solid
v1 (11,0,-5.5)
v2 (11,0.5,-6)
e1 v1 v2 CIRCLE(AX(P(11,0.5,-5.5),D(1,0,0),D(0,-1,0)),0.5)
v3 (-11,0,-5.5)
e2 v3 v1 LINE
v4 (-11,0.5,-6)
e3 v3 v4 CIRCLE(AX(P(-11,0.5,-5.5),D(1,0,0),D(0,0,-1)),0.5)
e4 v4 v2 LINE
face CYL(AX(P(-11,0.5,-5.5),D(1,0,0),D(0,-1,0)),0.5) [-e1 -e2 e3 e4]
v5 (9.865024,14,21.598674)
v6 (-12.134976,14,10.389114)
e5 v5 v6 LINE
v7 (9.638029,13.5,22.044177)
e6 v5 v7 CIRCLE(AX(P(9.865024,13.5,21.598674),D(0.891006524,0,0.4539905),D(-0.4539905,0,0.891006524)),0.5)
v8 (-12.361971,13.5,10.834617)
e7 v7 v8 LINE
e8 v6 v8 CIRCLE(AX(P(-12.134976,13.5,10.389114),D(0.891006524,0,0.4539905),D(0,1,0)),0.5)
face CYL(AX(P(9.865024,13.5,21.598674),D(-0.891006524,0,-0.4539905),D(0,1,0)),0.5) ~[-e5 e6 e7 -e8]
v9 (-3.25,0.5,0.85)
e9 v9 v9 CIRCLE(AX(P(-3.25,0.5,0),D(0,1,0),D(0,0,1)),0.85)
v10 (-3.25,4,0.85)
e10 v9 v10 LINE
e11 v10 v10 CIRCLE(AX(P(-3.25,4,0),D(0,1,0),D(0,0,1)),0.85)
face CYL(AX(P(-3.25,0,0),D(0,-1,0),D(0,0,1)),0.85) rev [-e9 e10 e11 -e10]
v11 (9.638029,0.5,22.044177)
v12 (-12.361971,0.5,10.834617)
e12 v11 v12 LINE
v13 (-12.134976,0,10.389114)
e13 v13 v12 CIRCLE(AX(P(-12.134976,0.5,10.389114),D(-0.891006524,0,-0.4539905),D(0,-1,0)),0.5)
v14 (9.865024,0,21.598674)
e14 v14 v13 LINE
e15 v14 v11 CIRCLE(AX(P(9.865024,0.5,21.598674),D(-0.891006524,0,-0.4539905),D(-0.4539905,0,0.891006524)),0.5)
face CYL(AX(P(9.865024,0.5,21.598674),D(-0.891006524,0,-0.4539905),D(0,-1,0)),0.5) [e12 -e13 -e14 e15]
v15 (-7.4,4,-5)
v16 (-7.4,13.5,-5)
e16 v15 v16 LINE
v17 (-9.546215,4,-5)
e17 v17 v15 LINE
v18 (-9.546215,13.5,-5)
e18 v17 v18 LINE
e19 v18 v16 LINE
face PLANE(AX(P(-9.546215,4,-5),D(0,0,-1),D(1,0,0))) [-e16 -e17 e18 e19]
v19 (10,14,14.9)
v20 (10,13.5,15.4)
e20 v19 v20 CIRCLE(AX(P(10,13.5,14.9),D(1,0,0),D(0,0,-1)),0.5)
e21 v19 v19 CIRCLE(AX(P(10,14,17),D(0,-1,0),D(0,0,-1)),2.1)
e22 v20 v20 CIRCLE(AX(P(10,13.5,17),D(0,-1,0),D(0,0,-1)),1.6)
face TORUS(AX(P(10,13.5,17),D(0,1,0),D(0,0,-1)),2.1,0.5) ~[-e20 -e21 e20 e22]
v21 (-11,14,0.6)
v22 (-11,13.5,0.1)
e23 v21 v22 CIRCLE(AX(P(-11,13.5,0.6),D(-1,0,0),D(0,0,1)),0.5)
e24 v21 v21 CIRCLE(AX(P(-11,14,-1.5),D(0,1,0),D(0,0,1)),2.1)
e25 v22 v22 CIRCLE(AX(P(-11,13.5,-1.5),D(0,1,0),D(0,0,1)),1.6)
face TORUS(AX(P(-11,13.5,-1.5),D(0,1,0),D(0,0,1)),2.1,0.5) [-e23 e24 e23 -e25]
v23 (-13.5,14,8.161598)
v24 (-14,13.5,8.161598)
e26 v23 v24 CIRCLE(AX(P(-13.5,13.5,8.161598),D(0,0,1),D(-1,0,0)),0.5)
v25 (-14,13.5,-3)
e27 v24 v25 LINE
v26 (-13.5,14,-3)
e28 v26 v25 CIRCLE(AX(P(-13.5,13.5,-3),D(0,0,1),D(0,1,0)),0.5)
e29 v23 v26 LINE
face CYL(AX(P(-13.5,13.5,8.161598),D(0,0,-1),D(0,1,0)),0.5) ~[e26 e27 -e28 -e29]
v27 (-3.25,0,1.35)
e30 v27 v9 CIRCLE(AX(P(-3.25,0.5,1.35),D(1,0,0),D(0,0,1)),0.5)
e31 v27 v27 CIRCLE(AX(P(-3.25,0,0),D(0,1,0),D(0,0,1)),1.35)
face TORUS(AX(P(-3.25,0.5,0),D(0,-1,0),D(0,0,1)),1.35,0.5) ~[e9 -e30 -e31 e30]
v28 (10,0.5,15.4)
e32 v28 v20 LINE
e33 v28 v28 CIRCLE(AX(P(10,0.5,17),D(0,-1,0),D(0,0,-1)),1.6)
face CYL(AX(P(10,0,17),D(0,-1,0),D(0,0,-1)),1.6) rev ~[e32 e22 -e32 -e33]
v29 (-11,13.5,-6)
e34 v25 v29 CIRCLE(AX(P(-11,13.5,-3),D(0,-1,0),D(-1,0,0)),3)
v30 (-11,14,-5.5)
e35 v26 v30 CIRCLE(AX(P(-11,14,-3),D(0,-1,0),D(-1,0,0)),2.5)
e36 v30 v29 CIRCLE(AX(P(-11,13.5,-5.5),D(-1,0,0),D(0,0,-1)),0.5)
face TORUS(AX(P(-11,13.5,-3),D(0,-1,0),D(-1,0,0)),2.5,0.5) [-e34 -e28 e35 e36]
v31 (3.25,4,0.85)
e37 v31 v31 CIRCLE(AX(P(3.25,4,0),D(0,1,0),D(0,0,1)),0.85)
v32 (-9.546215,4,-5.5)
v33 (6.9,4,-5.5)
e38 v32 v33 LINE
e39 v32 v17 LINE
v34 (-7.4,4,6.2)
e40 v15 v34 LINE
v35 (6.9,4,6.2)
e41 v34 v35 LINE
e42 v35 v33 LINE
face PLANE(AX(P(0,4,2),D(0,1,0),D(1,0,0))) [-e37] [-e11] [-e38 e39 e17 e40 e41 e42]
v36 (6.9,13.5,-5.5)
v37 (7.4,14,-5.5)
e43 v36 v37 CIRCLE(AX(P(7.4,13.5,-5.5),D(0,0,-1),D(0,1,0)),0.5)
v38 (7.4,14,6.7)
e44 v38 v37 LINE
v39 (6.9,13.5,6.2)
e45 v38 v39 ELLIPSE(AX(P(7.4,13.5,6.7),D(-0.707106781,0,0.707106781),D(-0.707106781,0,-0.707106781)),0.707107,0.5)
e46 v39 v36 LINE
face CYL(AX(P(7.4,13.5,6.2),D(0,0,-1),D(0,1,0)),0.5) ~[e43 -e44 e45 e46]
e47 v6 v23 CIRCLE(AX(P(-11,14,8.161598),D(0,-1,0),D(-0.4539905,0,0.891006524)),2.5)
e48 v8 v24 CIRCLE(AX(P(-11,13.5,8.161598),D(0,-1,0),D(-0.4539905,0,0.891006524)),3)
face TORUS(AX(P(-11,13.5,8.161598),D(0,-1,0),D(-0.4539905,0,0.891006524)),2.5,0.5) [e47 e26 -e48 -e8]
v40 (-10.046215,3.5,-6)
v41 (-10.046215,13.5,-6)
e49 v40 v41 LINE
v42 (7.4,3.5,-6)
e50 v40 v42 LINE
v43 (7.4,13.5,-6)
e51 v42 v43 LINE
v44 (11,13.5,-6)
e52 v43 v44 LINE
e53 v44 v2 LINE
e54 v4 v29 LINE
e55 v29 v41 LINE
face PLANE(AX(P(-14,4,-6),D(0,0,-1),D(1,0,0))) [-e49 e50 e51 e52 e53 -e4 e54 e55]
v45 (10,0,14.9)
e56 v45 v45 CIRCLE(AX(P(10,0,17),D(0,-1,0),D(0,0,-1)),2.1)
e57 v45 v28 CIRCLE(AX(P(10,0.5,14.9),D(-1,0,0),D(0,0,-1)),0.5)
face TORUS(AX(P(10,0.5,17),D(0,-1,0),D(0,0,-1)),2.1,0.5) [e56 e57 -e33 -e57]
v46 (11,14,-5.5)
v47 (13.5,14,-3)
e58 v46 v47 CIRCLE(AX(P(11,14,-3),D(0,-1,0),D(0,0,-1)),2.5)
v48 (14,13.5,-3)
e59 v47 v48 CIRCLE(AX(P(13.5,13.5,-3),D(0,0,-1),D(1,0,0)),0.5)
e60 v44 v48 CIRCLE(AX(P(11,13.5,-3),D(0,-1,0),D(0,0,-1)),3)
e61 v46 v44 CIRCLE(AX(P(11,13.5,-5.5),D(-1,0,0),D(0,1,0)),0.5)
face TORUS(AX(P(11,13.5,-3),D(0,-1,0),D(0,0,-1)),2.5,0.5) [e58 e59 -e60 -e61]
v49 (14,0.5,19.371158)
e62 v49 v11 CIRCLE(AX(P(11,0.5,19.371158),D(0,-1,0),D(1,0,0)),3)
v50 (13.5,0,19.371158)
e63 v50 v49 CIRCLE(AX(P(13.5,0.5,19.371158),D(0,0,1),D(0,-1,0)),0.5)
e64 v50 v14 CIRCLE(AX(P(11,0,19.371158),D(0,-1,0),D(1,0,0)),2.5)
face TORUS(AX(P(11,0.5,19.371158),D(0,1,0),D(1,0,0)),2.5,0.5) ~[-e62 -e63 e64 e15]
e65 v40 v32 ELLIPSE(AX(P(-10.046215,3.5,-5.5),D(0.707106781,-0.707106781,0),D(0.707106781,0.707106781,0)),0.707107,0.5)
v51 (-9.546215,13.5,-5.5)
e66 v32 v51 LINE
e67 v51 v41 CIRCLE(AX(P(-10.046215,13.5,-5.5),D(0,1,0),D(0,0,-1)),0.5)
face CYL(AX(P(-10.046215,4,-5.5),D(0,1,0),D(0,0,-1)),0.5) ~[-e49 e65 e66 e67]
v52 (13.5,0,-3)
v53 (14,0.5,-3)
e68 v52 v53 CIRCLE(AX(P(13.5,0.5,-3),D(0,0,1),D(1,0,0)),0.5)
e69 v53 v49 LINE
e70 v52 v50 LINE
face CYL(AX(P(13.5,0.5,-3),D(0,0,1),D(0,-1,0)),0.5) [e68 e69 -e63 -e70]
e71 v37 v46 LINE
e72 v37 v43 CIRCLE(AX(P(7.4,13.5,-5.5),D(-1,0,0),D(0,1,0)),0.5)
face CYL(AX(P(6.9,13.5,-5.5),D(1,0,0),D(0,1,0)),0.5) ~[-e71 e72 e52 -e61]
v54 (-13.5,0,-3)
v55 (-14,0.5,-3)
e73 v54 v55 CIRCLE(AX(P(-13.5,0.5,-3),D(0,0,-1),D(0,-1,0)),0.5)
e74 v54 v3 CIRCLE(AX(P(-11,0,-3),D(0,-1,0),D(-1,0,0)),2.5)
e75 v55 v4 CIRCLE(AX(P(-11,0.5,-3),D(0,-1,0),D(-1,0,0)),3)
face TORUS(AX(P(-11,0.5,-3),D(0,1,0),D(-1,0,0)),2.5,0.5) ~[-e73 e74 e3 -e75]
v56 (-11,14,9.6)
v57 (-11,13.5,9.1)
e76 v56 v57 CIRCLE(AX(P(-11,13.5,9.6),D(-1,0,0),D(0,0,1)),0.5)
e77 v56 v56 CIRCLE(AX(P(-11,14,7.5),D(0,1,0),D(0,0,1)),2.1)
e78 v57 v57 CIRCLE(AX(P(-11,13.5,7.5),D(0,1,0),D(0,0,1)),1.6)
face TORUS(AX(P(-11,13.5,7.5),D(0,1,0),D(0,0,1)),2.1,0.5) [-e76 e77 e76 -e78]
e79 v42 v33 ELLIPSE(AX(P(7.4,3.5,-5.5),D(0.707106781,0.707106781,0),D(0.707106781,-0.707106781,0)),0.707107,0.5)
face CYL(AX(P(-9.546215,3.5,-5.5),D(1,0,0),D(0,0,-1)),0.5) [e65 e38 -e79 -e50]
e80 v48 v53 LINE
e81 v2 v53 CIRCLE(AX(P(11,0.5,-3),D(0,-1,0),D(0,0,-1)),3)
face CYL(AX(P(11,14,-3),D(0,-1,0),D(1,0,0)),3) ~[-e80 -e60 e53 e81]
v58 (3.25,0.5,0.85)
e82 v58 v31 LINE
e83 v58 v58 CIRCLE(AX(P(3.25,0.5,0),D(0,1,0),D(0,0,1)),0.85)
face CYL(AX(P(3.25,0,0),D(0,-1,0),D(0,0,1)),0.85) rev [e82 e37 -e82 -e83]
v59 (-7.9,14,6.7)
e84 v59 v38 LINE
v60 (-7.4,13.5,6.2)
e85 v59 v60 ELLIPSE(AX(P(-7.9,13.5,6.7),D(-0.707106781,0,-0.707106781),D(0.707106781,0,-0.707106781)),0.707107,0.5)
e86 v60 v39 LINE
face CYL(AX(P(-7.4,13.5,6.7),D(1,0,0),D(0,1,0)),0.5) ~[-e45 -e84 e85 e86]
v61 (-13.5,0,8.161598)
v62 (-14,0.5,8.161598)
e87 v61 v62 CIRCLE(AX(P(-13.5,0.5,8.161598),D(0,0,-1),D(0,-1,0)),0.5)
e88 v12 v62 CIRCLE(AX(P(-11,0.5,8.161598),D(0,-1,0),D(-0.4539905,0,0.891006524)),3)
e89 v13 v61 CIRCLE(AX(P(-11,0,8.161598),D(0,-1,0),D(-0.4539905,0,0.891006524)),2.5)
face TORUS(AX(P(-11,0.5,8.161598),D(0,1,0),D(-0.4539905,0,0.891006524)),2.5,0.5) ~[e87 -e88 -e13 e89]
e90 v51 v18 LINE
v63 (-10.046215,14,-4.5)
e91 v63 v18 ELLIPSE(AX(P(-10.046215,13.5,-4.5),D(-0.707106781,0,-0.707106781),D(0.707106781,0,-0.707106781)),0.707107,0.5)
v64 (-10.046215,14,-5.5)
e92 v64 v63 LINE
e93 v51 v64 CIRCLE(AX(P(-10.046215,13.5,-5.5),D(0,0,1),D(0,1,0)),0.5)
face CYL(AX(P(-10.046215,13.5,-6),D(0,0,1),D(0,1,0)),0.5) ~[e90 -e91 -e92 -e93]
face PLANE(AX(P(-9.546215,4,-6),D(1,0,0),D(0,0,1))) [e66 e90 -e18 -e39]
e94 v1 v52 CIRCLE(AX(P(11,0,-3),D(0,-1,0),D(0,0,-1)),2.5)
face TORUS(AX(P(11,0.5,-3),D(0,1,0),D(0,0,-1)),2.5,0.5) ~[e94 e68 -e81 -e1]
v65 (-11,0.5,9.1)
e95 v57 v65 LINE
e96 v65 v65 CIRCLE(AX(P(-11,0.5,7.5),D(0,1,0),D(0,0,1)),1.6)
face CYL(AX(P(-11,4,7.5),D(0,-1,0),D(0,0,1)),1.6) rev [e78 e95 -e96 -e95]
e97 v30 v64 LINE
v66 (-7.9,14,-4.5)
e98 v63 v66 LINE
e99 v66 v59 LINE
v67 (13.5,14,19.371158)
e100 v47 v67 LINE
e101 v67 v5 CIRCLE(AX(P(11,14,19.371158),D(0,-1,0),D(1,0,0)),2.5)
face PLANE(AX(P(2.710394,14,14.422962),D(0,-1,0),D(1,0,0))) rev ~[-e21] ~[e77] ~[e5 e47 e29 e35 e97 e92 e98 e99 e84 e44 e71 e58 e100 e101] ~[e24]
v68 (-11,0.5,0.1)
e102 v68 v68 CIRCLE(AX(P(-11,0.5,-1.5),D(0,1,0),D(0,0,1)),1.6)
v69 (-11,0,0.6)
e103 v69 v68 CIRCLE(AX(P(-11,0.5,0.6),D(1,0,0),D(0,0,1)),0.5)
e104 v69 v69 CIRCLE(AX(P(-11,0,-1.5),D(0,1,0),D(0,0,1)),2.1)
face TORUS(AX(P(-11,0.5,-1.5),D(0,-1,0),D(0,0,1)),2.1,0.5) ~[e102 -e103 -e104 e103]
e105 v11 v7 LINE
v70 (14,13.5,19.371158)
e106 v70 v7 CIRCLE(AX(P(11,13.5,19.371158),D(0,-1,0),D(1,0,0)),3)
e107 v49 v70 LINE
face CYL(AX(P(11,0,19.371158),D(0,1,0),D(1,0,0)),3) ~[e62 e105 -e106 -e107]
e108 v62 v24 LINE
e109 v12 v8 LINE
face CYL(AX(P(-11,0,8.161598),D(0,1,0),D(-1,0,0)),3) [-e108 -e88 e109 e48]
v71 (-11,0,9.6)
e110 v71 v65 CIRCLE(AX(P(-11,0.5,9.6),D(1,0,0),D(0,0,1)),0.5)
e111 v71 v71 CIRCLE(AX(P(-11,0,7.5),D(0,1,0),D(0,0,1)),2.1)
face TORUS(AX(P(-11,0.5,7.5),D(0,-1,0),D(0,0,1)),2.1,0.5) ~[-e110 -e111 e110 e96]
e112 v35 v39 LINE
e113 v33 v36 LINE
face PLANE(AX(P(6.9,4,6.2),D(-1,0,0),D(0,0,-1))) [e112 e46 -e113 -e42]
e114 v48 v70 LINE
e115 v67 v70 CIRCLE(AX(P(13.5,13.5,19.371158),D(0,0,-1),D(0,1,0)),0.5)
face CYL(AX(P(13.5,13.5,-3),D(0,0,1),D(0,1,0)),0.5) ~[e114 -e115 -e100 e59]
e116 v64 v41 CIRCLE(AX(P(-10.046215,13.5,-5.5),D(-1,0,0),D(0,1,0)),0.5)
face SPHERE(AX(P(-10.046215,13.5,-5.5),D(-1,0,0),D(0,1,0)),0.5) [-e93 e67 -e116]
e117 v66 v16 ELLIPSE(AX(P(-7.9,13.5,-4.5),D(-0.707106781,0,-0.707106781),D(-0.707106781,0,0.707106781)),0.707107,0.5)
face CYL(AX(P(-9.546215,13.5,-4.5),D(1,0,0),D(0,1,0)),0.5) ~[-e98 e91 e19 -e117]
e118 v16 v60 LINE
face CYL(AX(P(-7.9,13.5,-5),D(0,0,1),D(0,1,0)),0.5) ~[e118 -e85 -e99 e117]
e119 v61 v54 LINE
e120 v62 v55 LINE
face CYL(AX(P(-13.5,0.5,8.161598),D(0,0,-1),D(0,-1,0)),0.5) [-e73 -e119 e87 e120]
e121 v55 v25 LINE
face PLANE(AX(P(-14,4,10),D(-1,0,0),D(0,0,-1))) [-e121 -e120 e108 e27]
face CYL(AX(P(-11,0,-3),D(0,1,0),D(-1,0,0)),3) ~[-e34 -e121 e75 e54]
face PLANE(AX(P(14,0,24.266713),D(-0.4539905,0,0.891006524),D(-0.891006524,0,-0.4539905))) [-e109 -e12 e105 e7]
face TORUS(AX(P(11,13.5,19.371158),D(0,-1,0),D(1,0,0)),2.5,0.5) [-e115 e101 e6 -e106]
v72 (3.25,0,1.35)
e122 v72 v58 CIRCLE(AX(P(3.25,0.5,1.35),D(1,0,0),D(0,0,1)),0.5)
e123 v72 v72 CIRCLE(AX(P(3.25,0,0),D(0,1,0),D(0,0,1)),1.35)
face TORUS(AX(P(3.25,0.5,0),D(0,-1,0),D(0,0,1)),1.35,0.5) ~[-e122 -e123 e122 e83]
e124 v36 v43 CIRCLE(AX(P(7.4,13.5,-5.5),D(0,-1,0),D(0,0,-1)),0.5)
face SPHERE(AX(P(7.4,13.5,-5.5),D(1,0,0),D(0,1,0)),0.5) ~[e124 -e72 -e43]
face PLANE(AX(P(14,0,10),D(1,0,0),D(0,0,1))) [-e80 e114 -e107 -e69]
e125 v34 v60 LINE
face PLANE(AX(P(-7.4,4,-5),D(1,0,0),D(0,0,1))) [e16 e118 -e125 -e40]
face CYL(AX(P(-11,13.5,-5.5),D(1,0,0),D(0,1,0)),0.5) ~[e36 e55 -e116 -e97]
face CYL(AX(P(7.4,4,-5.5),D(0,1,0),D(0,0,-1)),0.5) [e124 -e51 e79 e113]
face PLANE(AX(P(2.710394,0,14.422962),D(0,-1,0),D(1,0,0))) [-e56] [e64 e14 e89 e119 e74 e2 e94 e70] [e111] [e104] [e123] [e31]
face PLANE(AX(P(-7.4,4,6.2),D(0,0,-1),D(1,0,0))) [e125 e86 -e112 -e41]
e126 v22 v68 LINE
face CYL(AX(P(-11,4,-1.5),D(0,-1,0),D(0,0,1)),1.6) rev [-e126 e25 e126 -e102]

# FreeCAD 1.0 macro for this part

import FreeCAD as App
import Part
import Sketcher

V = App.Vector
Q = App.Units.Quantity


def edges_at(feature, points):
    """Names of the edges that pass closest to the given points."""
    edges = feature.Shape.Edges
    near = lambda p: min(range(len(edges)), key=lambda i: edges[i].distToShape(Part.Vertex(*p))[0])
    return sorted({f"Edge{near(p) + 1}" for p in points})


def add_polygon(sketch, points):
    """Adds a closed chain of lines whose ends are joined by coincident constraints."""
    first, n = sketch.GeometryCount, len(points)
    for a, b in zip(points, points[1:] + points[:1]):
        sketch.addGeometry(Part.LineSegment(App.Vector(*a, 0), App.Vector(*b, 0)), False)
    for i in range(n):
        sketch.addConstraint(Sketcher.Constraint("Coincident", first + i, 2, first + (i + 1) % n, 1))

doc = App.newDocument("Part")
body = doc.addObject("PartDesign::Body", "Body")

# Sketch on XZ plane
sketch1 = doc.addObject("Sketcher::SketchObject", "Sketch")
body.addObject(sketch1)
sketch1.AttachmentSupport = (doc.XZ_Plane, [""])
sketch1.MapMode = "FlatFace"
add_polygon(sketch1, [(-14, -6), (-14, 10), (14, 10), (14, -6)])  # lines 0-3
sketch1.addGeometry(Part.Circle(V(-11, 7.5, 0), V(0, 0, 1), 1.6), False)  # 4
sketch1.addGeometry(Part.Circle(V(-11, -1.5, 0), V(0, 0, 1), 1.6), False)  # 5
sketch1.addGeometry(Part.Circle(V(-3.25, 0, 0), V(0, 0, 1), 0.85), False)  # 6
sketch1.addGeometry(Part.Circle(V(3.25, 0, 0), V(0, 0, 1), 0.85), False)  # 7
sketch1.addConstraint([
    Sketcher.Constraint("Vertical", 0),
    Sketcher.Constraint("Horizontal", 1),
    Sketcher.Constraint("Vertical", 2),
    Sketcher.Constraint("Horizontal", 3),
    Sketcher.Constraint("Equal", 4, 5),
    Sketcher.Constraint("Equal", 6, 7),
    Sketcher.Constraint("Symmetric", 6, 3, 7, 3, -1, 1),
    Sketcher.Constraint("PointOnObject", 6, 3, -1),
    Sketcher.Constraint("Vertical", 4, 3, 5, 3),
    Sketcher.Constraint("Diameter", 4, 3.2),
    Sketcher.Constraint("Diameter", 6, 1.7),
    Sketcher.Constraint("DistanceX", 1, 1, 1, 2, 28.0),
    Sketcher.Constraint("DistanceY", 0, 1, 0, 2, 16.0),
    Sketcher.Constraint("DistanceX", 4, 3, -1, 1, 11.0),
    Sketcher.Constraint("DistanceX", 0, 2, -1, 1, 14.0),
    Sketcher.Constraint("DistanceY", -1, 1, 0, 2, 10.0),
    Sketcher.Constraint("DistanceY", 5, 3, 4, 3, 9.0),
    Sketcher.Constraint("DistanceY", -1, 1, 4, 3, 7.5),
    Sketcher.Constraint("DistanceX", 6, 3, 7, 3, 6.5),
])
pad1 = doc.addObject("PartDesign::Pad", "Pad")
body.addObject(pad1)
pad1.Profile = sketch1
pad1.Length = 4
pad1.Reversed = True

# Sketch on XZ plane
sketch2 = doc.addObject("Sketcher::SketchObject", "Sketch001")
body.addObject(sketch2)
sketch2.AttachmentSupport = (doc.XZ_Plane, [""])
sketch2.MapMode = "FlatFace"
sketch2.AttachmentOffset = App.Placement(V(0, 0, -4), App.Rotation())
add_polygon(sketch2, [(-9.546215, -5), (-9.546215, -6), (-14, -6), (-14, 10), (14, 10), (14, -6), (6.9, -6), (6.9, 6.2), (-7.4, 6.2), (-7.4, -5)])  # lines 0-9
sketch2.addGeometry(Part.Circle(V(-11, 7.5, 0), V(0, 0, 1), 1.6), False)  # 10
sketch2.addGeometry(Part.Circle(V(-11, -1.5, 0), V(0, 0, 1), 1.6), False)  # 11
sketch2.addConstraint([
    Sketcher.Constraint("Vertical", 0),
    Sketcher.Constraint("Horizontal", 1),
    Sketcher.Constraint("Vertical", 2),
    Sketcher.Constraint("Horizontal", 3),
    Sketcher.Constraint("Vertical", 4),
    Sketcher.Constraint("Horizontal", 5),
    Sketcher.Constraint("Vertical", 6),
    Sketcher.Constraint("Horizontal", 7),
    Sketcher.Constraint("Vertical", 8),
    Sketcher.Constraint("Horizontal", 9),
    Sketcher.Constraint("Equal", 10, 11),
    Sketcher.Constraint("Symmetric", 1, 2, 4, 2, -2),
    Sketcher.Constraint("Vertical", 10, 3, 11, 3),
    Sketcher.Constraint("Diameter", 10, 3.2),
    Sketcher.Constraint("DistanceX", 3, 1, 3, 2, 28.0),
    Sketcher.Constraint("DistanceY", 0, 2, 0, 1, 1.0),
    Sketcher.Constraint("DistanceY", 2, 1, 2, 2, 16.0),
    Sketcher.Constraint("DistanceX", 5, 2, 5, 1, 7.1),
    Sketcher.Constraint("DistanceX", 7, 2, 7, 1, 14.3),
    Sketcher.Constraint("DistanceY", 6, 1, 6, 2, 12.2),
    Sketcher.Constraint("DistanceX", 10, 3, -1, 1, 11.0),
    Sketcher.Constraint("DistanceY", 0, 2, -1, 1, 6.0),
    Sketcher.Constraint("DistanceY", 11, 3, 10, 3, 9.0),
    Sketcher.Constraint("DistanceY", -1, 1, 10, 3, 7.5),
    Sketcher.Constraint("DistanceX", 1, 2, 1, 1, 4.453785),
])
pad2 = doc.addObject("PartDesign::Pad", "Pad001")
body.addObject(pad2)
pad2.Profile = sketch2
pad2.Length = 10
pad2.Reversed = True

# Sketch on XZ plane
sketch3 = doc.addObject("Sketcher::SketchObject", "Sketch002")
body.addObject(sketch3)
sketch3.AttachmentSupport = (doc.XZ_Plane, [""])
sketch3.MapMode = "FlatFace"
add_polygon(sketch3, [(14, 10), (14, 24.266713), (-14, 10)])  # lines 0-2
sketch3.addGeometry(Part.Circle(V(10, 17, 0), V(0, 0, 1), 1.6), False)  # 3
sketch3.addConstraint([
    Sketcher.Constraint("Vertical", 0),
    Sketcher.Constraint("Horizontal", 2),
    Sketcher.Constraint("Diameter", 3, 3.2),
    Sketcher.Constraint("DistanceX", 2, 1, 2, 2, 28.0),
    Sketcher.Constraint("Angle", 1, Q("-153 deg")),
    Sketcher.Constraint("DistanceX", -1, 1, 3, 3, 10.0),
    Sketcher.Constraint("DistanceY", -1, 1, 3, 3, 17.0),
    Sketcher.Constraint("DistanceX", -1, 1, 0, 2, 14.0),
    Sketcher.Constraint("DistanceY", -1, 1, 1, 2, 10.0),
])
pad3 = doc.addObject("PartDesign::Pad", "Pad002")
body.addObject(pad3)
pad3.Profile = sketch3
pad3.Length = 14
pad3.Reversed = True
doc.recompute()

fillet = doc.addObject("PartDesign::Fillet", "Fillet")
body.addObject(fillet)
fillet.Base = (pad3, edges_at(pad3, [
    (14, 7, 24.267),
    (-14, 7, 10),
    (-14, 7, -6),
    (14, 7, -6),
]))
fillet.Radius = 3
doc.recompute()

fillet2 = doc.addObject("PartDesign::Fillet", "Fillet001")
body.addObject(fillet2)
fillet2.Base = (fillet, edges_at(fillet, [
    (3.25, 0, -0.85),
    (-3.25, 0, -0.85),
    (-11, 0, 5.9),
    (-11, 0, -3.1),
    (-1.323, 4, -6),
    (-10.273, 14, -6),
    (6.9, 14, 0.1),
    (-0.25, 14, 6.2),
    (-7.4, 14, 0.6),
    (-8.473, 14, -5),
    (-9.546, 14, -5.5),
    (-9.546, 9, -6),
    (6.9, 9, -6),
    (-11, 14, 5.9),
    (-11, 14, -3.1),
    (10, 14, 18.6),
    (10, 0, 18.6),
    (-14, 0, 2.581),
    (-14, 14, 2.581),
    (14, 0, 8.186),
    (-1.362, 0, 16.439),
    (0, 0, -6),
    (12.567, 0, 21.929),
    (-13.558, 0, 9.729),
    (13.121, 0, -5.121),
    (-13.121, 0, -5.121),
    (8.95, 14, -6),
    (-1.362, 14, 16.439),
    (14, 14, 8.186),
    (12.567, 14, 21.929),
    (-13.558, 14, 9.729),
    (13.121, 14, -5.121),
    (-13.121, 14, -5.121),
]))
fillet2.Radius = 0.5

doc.recompute()
